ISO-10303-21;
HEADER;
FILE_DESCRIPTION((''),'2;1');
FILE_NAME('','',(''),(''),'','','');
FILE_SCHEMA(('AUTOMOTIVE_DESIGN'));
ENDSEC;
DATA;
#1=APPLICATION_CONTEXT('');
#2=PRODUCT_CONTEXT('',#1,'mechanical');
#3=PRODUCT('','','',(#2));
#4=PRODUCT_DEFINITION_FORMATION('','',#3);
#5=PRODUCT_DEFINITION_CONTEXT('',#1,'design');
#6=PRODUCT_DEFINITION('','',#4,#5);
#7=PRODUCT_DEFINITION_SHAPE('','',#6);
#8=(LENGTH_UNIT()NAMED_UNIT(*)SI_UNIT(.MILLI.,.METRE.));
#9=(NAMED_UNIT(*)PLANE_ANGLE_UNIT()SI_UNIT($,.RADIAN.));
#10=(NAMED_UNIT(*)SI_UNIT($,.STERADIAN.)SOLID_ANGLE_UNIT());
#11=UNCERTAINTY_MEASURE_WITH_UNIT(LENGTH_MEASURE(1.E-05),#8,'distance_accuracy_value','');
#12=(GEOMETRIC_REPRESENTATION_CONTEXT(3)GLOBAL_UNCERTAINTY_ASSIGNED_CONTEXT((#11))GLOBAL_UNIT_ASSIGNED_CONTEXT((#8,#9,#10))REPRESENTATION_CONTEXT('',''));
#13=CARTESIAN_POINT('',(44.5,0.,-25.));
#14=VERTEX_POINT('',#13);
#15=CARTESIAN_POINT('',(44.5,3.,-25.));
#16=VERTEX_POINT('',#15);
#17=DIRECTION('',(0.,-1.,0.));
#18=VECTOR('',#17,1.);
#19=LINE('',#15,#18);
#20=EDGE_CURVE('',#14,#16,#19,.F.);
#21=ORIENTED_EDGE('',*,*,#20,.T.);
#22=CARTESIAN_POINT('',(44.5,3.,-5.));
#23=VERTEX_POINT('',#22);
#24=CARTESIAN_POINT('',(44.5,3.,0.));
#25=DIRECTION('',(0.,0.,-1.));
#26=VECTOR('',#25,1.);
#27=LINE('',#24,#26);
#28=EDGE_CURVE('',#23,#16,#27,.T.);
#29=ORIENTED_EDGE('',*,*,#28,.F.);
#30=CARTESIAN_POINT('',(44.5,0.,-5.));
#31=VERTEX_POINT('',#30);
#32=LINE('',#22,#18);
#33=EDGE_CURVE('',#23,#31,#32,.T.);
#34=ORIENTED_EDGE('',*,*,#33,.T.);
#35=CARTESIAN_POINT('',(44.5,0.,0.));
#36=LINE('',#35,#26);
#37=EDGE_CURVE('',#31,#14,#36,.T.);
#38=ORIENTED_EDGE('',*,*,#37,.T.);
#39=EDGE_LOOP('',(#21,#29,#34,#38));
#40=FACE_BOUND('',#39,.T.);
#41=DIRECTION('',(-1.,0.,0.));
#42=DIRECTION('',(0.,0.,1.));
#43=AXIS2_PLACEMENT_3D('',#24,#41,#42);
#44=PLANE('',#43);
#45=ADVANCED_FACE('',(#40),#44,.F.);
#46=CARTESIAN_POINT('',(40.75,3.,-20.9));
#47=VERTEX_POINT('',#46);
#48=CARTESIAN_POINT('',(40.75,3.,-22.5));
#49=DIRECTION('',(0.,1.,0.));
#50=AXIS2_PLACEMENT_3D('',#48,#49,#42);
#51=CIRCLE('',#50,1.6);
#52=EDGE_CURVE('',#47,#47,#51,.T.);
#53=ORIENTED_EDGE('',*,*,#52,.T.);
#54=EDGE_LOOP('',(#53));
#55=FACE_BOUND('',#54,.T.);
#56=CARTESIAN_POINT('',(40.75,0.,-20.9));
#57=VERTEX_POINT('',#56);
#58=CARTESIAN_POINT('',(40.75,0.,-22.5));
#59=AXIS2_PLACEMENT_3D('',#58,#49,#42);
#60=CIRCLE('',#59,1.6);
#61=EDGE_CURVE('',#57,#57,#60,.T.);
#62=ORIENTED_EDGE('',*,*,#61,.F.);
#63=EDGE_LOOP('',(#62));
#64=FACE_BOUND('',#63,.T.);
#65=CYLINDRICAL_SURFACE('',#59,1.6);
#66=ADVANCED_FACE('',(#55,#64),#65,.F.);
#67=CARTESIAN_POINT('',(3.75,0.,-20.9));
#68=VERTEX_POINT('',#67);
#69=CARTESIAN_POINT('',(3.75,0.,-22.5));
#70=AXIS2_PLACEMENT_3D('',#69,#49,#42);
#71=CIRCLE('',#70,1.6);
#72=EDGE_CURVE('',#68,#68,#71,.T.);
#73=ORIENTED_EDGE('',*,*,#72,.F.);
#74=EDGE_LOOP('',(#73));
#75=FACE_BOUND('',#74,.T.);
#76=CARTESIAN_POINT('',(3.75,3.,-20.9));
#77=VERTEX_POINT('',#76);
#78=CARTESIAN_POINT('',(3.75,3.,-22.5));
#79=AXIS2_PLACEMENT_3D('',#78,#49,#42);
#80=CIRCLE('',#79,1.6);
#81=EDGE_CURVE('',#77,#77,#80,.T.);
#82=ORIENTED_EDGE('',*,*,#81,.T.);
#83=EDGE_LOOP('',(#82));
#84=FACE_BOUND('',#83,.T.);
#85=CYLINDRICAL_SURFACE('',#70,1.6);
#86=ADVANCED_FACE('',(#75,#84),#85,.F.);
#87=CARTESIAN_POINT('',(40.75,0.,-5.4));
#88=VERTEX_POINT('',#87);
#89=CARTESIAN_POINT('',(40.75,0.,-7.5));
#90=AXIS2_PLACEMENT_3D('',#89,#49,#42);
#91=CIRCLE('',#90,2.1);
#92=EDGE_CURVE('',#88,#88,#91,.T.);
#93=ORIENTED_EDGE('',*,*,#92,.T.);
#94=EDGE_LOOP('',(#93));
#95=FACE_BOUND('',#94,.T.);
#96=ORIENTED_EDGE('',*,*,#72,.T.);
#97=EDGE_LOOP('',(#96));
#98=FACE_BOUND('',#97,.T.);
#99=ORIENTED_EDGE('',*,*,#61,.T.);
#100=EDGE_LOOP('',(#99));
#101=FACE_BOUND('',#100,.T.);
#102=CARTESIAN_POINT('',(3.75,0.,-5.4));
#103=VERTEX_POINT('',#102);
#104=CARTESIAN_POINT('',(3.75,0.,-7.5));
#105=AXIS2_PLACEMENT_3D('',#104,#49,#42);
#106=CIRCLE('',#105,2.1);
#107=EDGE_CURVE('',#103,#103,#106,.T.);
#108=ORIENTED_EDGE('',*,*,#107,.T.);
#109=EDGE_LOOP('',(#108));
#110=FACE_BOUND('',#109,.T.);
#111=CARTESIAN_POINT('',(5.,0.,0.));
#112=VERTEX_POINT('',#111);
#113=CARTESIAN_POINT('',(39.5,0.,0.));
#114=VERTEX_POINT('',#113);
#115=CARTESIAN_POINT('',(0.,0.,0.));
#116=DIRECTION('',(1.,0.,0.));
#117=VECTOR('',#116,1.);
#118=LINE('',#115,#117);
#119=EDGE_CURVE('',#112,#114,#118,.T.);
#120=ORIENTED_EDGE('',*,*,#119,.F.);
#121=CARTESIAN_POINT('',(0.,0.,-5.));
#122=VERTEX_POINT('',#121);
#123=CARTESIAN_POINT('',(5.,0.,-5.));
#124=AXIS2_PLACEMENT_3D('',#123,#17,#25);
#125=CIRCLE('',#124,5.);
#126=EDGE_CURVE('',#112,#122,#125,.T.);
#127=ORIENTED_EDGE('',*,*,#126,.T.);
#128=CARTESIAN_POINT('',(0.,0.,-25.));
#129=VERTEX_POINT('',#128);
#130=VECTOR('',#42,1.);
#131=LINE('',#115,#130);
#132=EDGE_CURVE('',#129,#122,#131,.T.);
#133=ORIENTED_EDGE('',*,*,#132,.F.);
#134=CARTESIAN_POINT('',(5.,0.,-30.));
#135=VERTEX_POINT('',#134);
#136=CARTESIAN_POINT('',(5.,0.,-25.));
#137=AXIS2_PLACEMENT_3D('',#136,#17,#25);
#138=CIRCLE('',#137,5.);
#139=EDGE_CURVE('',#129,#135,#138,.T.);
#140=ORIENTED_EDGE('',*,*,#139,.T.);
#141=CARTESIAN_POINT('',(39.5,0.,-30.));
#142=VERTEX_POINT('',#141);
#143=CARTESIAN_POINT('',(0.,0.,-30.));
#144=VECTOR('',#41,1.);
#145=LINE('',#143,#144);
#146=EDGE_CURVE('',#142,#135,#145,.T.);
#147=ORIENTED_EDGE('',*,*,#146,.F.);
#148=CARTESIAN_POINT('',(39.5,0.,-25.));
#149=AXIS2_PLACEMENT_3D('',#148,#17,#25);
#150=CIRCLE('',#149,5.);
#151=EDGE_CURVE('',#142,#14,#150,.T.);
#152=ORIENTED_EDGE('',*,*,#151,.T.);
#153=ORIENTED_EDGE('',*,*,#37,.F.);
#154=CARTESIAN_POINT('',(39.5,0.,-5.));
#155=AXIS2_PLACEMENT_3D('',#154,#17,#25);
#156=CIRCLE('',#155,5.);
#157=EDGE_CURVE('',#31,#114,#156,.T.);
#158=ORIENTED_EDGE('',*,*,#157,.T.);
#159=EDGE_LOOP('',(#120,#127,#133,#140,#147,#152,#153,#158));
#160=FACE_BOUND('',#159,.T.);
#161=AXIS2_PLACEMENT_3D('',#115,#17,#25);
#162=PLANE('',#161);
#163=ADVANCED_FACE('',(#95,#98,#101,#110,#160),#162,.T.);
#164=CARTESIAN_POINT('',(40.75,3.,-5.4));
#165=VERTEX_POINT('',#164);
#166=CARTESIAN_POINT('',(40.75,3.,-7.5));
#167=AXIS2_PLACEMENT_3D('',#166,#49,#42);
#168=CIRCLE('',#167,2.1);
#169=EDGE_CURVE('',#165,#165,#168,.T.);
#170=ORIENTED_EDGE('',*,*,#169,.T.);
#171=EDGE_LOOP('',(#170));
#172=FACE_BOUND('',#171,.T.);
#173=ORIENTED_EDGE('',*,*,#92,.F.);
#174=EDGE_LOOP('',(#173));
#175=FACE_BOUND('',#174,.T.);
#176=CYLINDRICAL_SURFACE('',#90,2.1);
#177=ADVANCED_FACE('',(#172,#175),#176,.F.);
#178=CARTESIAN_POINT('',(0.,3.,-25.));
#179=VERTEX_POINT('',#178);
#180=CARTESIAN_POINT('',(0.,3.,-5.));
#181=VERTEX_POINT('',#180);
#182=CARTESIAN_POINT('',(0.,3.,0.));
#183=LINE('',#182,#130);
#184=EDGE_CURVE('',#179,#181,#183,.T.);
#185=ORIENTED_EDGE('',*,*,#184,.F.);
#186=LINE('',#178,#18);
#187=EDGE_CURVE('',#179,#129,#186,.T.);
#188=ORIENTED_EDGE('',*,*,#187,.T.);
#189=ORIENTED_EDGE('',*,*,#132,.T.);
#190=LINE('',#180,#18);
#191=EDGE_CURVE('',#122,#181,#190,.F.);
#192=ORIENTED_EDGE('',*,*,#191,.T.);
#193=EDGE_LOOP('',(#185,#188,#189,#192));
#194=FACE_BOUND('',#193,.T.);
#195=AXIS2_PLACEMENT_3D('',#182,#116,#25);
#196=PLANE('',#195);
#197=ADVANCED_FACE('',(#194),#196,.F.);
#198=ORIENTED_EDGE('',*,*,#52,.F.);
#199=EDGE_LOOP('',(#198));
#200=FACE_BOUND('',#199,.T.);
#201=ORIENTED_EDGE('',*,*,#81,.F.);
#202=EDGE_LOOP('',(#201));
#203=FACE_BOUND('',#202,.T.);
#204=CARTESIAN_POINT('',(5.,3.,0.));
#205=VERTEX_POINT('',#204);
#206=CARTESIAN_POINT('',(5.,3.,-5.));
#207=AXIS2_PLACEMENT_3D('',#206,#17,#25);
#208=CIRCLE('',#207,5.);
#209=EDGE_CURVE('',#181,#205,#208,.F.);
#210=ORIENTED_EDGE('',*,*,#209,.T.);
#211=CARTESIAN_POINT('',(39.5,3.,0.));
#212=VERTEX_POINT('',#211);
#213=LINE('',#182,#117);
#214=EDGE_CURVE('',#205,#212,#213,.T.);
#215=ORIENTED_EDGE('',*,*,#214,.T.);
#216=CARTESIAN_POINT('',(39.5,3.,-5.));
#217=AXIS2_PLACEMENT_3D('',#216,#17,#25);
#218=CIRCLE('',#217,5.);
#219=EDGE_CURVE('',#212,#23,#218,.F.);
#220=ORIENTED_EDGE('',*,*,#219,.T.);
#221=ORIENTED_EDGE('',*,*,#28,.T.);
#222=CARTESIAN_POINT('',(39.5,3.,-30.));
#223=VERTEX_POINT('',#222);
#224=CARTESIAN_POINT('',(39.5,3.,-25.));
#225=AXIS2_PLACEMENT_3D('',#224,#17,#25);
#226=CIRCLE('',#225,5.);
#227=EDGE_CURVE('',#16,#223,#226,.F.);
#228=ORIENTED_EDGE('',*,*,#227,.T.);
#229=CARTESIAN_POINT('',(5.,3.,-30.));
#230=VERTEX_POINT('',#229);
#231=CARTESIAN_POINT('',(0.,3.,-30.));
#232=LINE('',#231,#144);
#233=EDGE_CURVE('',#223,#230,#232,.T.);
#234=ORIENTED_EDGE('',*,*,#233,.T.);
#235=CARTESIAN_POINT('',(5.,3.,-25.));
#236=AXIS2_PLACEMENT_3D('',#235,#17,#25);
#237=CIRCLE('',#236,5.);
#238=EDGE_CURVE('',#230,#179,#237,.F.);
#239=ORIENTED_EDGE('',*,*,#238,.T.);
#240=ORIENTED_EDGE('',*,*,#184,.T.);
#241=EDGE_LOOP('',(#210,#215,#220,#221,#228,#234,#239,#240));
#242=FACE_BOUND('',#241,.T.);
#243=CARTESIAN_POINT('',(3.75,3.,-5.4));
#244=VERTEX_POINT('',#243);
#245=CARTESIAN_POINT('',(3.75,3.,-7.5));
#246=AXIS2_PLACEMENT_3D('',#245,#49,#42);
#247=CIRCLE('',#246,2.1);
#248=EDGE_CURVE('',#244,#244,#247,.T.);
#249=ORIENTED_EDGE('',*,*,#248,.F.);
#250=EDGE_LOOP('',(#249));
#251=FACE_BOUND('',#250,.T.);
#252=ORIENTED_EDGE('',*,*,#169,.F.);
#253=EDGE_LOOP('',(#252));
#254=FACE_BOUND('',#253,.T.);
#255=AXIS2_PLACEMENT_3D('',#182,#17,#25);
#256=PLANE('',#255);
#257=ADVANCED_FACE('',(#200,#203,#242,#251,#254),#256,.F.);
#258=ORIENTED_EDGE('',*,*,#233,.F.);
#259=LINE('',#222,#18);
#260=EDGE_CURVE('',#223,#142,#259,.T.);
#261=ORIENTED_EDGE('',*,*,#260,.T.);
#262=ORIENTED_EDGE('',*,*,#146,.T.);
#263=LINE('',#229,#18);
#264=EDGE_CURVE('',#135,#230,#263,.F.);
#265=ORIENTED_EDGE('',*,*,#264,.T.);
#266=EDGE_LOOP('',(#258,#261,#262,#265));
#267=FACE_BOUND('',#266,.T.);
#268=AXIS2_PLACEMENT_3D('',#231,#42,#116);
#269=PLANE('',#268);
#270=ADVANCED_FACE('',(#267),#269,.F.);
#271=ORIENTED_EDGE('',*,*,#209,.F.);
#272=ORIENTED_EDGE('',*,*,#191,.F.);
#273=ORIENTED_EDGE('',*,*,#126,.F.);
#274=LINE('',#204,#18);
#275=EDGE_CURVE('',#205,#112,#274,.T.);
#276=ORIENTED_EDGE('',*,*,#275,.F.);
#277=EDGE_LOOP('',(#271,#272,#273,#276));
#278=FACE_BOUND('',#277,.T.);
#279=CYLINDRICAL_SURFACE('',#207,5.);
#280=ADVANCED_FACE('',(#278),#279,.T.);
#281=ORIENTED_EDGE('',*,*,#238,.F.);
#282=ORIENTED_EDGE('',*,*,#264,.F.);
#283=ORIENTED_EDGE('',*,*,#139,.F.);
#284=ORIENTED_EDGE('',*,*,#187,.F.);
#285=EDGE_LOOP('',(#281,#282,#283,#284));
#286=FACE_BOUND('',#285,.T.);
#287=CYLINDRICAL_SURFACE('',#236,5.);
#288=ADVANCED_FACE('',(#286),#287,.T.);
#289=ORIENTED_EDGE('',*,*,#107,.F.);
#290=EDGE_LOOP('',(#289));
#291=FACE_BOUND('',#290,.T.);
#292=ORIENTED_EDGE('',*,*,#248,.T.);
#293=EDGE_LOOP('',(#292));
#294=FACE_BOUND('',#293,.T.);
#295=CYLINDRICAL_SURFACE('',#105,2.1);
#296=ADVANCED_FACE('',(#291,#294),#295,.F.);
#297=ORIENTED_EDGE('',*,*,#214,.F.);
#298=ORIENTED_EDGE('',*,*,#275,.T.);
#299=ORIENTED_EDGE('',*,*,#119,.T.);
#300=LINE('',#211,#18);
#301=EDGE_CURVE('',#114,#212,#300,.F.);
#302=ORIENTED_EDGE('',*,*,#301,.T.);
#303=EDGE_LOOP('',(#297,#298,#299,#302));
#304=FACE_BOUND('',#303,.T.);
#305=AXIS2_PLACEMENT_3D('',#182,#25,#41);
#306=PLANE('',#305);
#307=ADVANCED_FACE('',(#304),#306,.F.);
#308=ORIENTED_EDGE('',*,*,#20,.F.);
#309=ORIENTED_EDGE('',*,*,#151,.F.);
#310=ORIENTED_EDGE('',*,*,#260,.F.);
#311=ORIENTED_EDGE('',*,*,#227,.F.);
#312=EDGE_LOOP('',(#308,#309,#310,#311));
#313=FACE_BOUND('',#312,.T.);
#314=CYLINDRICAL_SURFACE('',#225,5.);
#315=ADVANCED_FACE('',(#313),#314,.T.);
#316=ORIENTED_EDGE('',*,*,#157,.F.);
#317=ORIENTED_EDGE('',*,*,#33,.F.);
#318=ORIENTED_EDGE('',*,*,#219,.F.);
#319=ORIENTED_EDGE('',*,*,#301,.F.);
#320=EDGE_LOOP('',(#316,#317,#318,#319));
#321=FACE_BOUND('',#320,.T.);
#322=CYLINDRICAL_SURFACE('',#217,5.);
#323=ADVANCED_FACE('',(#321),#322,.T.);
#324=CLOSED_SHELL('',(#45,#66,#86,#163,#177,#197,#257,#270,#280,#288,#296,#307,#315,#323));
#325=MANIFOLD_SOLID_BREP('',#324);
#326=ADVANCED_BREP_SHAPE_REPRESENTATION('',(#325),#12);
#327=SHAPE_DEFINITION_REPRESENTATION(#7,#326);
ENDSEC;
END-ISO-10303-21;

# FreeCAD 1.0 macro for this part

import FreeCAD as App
import Part
import Sketcher
from FreeCAD import Vector
Q = App.Units.Quantity


def edges_at(feature, points):
    """Names of the edges that pass closest to the given points."""
    edges = feature.Shape.Edges
    near = lambda p: min(range(len(edges)), key=lambda i: edges[i].distToShape(Part.Vertex(*p))[0])
    return sorted({f"Edge{near(p) + 1}" for p in points})


def add_polygon(sketch, points):
    """Adds a closed chain of lines whose ends are joined by coincident constraints."""
    first, n = sketch.GeometryCount, len(points)
    for a, b in zip(points, points[1:] + points[:1]):
        sketch.addGeometry(Part.LineSegment(App.Vector(*a, 0), App.Vector(*b, 0)), False)
    for i in range(n):
        sketch.addConstraint(Sketcher.Constraint("Coincident", first + i, 2, first + (i + 1) % n, 1))

doc = App.newDocument("Part")
body = doc.addObject("PartDesign::Body", "Body")

sketch1 = doc.addObject("Sketcher::SketchObject", "Sketch")
body.addObject(sketch1)
sketch1.AttachmentSupport = (doc.XZ_Plane, [""])
sketch1.MapMode = "FlatFace"
add_polygon(sketch1, [(0, -30), (0, 0), (44, 0), (44, -30)])
sketch1.addConstraint(Sketcher.Constraint("Vertical", 0))
sketch1.addConstraint(Sketcher.Constraint("Horizontal", 1))
sketch1.addConstraint(Sketcher.Constraint("Vertical", 2))
sketch1.addConstraint(Sketcher.Constraint("Horizontal", 3))
sketch1.addConstraint(Sketcher.Constraint("Coincident", 0, 2, -1, 1))
sketch1.addConstraint(Sketcher.Constraint("DistanceY", 0, 1, 0, 2, Q("30 mm")))
sketch1.addConstraint(Sketcher.Constraint("DistanceX", 1, 1, 1, 2, Q("44.5 mm")))
pad1 = doc.addObject("PartDesign::Pad", "Pad")
body.addObject(pad1)
pad1.Profile = sketch1
pad1.Length = 3
pad1.Reversed = True

sketch2 = doc.addObject("Sketcher::SketchObject", "Sketch001")
body.addObject(sketch2)
sketch2.AttachmentSupport = (doc.XZ_Plane, [""])
sketch2.MapMode = "FlatFace"
sketch2.AttachmentOffset = App.Placement(Vector(0, 0, -3), App.Rotation())
sketch2.addGeometry(Part.Circle(Vector(3.8, -22.5, 0), Vector(0, 0, 1), 1.6), False)
sketch2.addGeometry(Part.Circle(Vector(40.8, -22.5, 0), Vector(0, 0, 1), 1.6), False)
sketch2.addGeometry(Part.Circle(Vector(3.8, -7.5, 0), Vector(0, 0, 1), 2.1), False)
sketch2.addGeometry(Part.Circle(Vector(40.8, -7.5, 0), Vector(0, 0, 1), 2.1), False)
sketch2.addConstraint(Sketcher.Constraint("Equal", 0, 1))
sketch2.addConstraint(Sketcher.Constraint("Equal", 2, 3))
sketch2.addConstraint(Sketcher.Constraint("Horizontal", 0, 3, 1, 3))
sketch2.addConstraint(Sketcher.Constraint("Horizontal", 2, 3, 3, 3))
sketch2.addConstraint(Sketcher.Constraint("Vertical", 0, 3, 2, 3))
sketch2.addConstraint(Sketcher.Constraint("Vertical", 1, 3, 3, 3))
sketch2.addConstraint(Sketcher.Constraint("Diameter", 0, Q("3.2 mm")))
sketch2.addConstraint(Sketcher.Constraint("Diameter", 2, Q("4.2 mm")))
sketch2.addConstraint(Sketcher.Constraint("DistanceX", 0, 3, 1, 3, Q("37 mm")))
sketch2.addConstraint(Sketcher.Constraint("DistanceY", 0, 3, 2, 3, Q("15 mm")))
sketch2.addConstraint(Sketcher.Constraint("DistanceY", 0, 3, -1, 1, Q("22.5 mm")))
sketch2.addConstraint(Sketcher.Constraint("DistanceX", -1, 1, 0, 3, Q("3.75 mm")))
pocket1 = doc.addObject("PartDesign::Pocket", "Pocket")
body.addObject(pocket1)
pocket1.Profile = sketch2
pocket1.Length = 3
pocket1.Reversed = True
doc.recompute()

fillet = doc.addObject("PartDesign::Fillet", "Fillet")
body.addObject(fillet)
fillet.Base = (pocket1, edges_at(pocket1, [
    (0, 1.5, -30),
    (44.5, 1.5, -30),
    (44.5, 1.5, 0),
    (0, 1.5, 0),
]))
fillet.Radius = 5

doc.recompute()
